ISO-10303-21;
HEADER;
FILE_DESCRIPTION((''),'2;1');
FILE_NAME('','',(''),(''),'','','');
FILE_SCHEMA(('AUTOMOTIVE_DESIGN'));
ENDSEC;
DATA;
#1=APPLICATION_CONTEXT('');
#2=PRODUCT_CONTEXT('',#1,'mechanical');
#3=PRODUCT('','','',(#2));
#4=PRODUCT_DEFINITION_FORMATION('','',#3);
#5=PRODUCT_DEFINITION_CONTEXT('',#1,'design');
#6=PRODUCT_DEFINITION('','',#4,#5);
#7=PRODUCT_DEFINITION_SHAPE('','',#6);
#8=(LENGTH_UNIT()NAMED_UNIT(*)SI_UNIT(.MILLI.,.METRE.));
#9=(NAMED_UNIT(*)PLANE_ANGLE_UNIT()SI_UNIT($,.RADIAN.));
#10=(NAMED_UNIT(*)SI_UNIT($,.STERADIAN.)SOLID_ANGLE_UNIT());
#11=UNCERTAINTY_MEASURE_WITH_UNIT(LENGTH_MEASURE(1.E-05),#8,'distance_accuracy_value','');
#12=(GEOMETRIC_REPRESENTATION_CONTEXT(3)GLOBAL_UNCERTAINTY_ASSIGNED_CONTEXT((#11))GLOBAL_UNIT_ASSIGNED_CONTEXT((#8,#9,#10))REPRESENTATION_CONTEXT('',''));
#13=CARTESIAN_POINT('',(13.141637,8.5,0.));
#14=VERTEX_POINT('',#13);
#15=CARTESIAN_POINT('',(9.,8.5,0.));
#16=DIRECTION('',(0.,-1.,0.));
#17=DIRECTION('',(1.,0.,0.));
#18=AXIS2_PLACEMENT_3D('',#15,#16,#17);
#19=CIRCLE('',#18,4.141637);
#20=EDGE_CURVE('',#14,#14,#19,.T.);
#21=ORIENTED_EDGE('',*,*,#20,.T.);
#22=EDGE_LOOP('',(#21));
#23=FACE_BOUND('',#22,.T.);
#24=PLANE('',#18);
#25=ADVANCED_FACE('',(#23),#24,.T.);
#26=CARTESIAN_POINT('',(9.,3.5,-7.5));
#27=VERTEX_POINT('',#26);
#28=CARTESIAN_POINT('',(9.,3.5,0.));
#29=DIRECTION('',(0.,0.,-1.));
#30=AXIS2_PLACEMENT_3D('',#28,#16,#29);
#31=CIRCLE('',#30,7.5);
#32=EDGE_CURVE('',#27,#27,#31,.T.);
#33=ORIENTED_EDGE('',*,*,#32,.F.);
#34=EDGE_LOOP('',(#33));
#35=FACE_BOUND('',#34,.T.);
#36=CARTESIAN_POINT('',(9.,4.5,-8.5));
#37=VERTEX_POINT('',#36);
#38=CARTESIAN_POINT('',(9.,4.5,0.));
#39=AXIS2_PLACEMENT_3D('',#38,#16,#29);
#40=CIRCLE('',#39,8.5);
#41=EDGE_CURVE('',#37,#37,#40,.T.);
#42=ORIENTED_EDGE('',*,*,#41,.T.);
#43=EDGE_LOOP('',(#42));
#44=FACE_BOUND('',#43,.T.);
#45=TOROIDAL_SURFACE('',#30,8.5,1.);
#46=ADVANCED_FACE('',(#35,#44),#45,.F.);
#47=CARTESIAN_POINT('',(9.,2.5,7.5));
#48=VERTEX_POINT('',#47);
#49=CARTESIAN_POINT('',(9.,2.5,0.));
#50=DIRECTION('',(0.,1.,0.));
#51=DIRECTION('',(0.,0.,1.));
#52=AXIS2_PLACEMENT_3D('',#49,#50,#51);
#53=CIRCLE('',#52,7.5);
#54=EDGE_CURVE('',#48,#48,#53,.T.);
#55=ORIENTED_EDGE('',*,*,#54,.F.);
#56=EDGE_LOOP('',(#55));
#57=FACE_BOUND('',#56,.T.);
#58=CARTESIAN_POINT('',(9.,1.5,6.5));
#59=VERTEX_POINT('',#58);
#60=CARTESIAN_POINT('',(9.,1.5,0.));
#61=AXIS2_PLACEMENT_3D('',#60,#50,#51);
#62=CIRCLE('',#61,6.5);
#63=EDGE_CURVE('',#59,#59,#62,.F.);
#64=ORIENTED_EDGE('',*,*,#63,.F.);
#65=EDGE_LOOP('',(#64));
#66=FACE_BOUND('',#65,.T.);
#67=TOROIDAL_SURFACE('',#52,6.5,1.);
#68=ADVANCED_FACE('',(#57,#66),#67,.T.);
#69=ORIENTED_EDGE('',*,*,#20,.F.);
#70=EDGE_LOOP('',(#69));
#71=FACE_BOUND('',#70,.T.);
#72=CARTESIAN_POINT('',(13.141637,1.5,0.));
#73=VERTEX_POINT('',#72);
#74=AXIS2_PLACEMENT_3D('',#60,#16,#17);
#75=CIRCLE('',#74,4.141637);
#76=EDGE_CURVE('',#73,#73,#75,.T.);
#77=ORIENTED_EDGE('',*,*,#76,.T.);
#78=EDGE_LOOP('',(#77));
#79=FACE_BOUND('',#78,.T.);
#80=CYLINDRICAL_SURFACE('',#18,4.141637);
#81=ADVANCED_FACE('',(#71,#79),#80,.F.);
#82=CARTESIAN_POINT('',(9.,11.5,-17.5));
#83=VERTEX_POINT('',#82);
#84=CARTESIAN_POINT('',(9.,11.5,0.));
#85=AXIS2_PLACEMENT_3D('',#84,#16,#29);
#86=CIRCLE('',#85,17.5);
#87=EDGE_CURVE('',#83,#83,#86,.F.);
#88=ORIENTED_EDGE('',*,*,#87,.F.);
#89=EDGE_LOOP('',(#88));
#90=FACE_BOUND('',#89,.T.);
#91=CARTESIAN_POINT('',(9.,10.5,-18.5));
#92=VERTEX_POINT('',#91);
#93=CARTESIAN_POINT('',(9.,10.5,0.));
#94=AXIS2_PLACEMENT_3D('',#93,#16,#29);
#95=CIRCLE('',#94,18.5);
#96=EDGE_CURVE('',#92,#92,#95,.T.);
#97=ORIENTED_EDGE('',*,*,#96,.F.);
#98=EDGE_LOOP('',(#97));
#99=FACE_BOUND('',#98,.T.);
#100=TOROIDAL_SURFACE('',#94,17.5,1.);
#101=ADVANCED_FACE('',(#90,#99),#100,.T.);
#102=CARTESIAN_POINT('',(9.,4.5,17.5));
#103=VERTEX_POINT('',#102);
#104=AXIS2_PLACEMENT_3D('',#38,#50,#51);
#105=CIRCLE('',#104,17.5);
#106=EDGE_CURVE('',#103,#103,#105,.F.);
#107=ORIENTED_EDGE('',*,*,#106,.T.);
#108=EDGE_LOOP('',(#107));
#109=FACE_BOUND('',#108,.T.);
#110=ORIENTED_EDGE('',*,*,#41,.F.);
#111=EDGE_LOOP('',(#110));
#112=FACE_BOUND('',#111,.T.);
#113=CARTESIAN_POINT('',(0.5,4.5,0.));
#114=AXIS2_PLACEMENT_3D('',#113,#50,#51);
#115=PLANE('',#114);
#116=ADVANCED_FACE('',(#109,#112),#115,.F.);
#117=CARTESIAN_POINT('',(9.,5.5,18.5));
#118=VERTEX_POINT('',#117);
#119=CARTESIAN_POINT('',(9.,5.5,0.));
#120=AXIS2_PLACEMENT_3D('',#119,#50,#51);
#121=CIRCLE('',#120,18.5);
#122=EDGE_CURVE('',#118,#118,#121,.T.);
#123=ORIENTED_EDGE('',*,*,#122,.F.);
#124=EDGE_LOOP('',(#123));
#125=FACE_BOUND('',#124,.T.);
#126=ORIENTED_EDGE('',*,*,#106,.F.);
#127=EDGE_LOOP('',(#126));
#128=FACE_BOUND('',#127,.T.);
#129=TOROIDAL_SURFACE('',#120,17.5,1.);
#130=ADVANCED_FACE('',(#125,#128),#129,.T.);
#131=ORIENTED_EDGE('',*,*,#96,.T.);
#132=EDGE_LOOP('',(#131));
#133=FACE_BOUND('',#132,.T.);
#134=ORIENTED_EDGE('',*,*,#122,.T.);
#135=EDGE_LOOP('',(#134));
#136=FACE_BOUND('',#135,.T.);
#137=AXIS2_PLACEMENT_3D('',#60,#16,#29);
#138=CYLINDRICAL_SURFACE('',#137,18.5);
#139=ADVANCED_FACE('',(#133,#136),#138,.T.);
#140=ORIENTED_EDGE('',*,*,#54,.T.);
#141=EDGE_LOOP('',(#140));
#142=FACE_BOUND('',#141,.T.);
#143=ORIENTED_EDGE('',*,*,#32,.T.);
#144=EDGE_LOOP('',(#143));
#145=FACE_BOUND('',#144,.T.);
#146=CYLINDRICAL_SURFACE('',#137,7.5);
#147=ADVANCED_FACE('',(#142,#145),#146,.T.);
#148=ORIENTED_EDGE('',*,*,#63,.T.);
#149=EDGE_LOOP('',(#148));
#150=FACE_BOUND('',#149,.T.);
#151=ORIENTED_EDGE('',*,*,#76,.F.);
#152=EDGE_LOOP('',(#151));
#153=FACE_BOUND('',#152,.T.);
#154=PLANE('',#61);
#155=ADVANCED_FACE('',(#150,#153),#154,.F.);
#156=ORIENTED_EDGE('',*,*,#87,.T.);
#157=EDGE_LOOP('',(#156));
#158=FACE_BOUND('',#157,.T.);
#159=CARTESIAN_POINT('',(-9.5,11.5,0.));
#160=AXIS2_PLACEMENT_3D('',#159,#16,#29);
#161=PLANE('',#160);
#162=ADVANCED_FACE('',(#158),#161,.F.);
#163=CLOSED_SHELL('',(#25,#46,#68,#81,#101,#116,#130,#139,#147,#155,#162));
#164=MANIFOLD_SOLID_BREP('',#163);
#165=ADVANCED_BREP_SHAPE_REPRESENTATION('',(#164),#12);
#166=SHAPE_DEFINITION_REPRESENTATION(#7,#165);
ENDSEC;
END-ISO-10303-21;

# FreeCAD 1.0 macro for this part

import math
import FreeCAD as App
import Part
import Sketcher
from FreeCAD import Vector
Q = App.Units.Quantity


def edges_at(feature, points):
    """Names of the edges that pass closest to the given points."""
    edges = feature.Shape.Edges
    near = lambda p: min(range(len(edges)), key=lambda i: edges[i].distToShape(Part.Vertex(*p))[0])
    return sorted({f"Edge{near(p) + 1}" for p in points})

doc = App.newDocument("Part")
body = doc.addObject("PartDesign::Body", "Body")

# Sketch on XY plane
sketch1 = doc.addObject("Sketcher::SketchObject", "Sketch")
body.addObject(sketch1)
sketch1.AttachmentSupport = (doc.XY_Plane, [""])
sketch1.MapMode = "FlatFace"
sketch1.addGeometry([
    Part.LineSegment(Vector(1.5, 3.5, 0), Vector(1.5, 1.5, 0)),  # 0
    Part.LineSegment(Vector(1.5, 1.5, 0), Vector(9, 1.5, 0)),  # 1
    Part.LineSegment(Vector(9, 1.5, 0), Vector(9, 11.5, 0)),  # 2
    Part.LineSegment(Vector(9, 11.5, 0), Vector(-9.5, 11.5, 0)),  # 3
    Part.LineSegment(Vector(-9.5, 11.5, 0), Vector(-9.5, 4.5, 0)),  # 4
    Part.LineSegment(Vector(-9.5, 4.5, 0), Vector(0.5, 4.5, 0)),  # 5
    Part.ArcOfCircle(Part.Circle(Vector(0.5, 3.5, 0), Vector(0, 0, 1), 1), math.radians(0), math.radians(90)),  # 6
], False)
sketch1.addGeometry(Part.LineSegment(Vector(9, 1.5, 0), Vector(9, 11.5, 0)), True)  # axis
sketch1.addConstraint([
    Sketcher.Constraint("Coincident", 0, 2, 1, 1),
    Sketcher.Constraint("Coincident", 1, 2, 2, 1),
    Sketcher.Constraint("Coincident", 2, 2, 3, 1),
    Sketcher.Constraint("Coincident", 3, 2, 4, 1),
    Sketcher.Constraint("Coincident", 4, 2, 5, 1),
    Sketcher.Constraint("Tangent", 5, 2, 6, 2),
    Sketcher.Constraint("Tangent", 6, 1, 0, 1),
    Sketcher.Constraint("Vertical", 0),
    Sketcher.Constraint("Horizontal", 1),
    Sketcher.Constraint("Vertical", 2),
    Sketcher.Constraint("Horizontal", 3),
    Sketcher.Constraint("Vertical", 4),
    Sketcher.Constraint("Horizontal", 5),
    Sketcher.Constraint("Vertical", 7),
    Sketcher.Constraint("Coincident", 7, 1, 1, 2),
    Sketcher.Constraint("Horizontal", 3, 2, 7, 2),
    Sketcher.Constraint("Equal", 5, 2),
    Sketcher.Constraint("Radius", 6, Q("1 mm")),
    Sketcher.Constraint("DistanceX", 5, 1, 5, 2, Q("10 mm")),
    Sketcher.Constraint("DistanceY", 0, 2, 0, 1, Q("2 mm")),
    Sketcher.Constraint("DistanceX", 1, 1, 1, 2, Q("7.5 mm")),
    Sketcher.Constraint("DistanceX", -1, 1, 1, 2, Q("9 mm")),
    Sketcher.Constraint("DistanceY", -1, 1, 6, 3, Q("3.5 mm")),
])
revolution = doc.addObject("PartDesign::Revolution", "Revolution")
body.addObject(revolution)
revolution.Profile = sketch1
revolution.ReferenceAxis = (sketch1, ["Axis0"])
revolution.Angle = 360

# Sketch on XZ plane
sketch2 = doc.addObject("Sketcher::SketchObject", "Sketch001")
body.addObject(sketch2)
sketch2.AttachmentSupport = (doc.XZ_Plane, [""])
sketch2.MapMode = "FlatFace"
sketch2.AttachmentOffset = App.Placement(Vector(0, 0, -1.5), App.Rotation())
sketch2.addGeometry(Part.Circle(Vector(9, 0, 0), Vector(0, 0, 1), 4.1), False)
sketch2.addConstraint([
    Sketcher.Constraint("PointOnObject", 0, 3, -1),
    Sketcher.Constraint("DistanceX", -1, 1, 0, 3, Q("9 mm")),
    Sketcher.Constraint("Diameter", 0, Q("8.283275 mm")),
])
pocket1 = doc.addObject("PartDesign::Pocket", "Pocket")
body.addObject(pocket1)
pocket1.Profile = sketch2
pocket1.Length = 7
doc.recompute()

fillet = doc.addObject("PartDesign::Fillet", "Fillet")
body.addObject(fillet)
fillet.Base = (pocket1, edges_at(pocket1, [(9, 4.5, 18.5), (9, 11.5, 18.5)]))
fillet.Radius = 1
doc.recompute()

fillet2 = doc.addObject("PartDesign::Fillet", "Fillet001")
body.addObject(fillet2)
fillet2.Base = (fillet, edges_at(fillet, [(9, 1.5, 7.5)]))
fillet2.Radius = 1

doc.recompute()
